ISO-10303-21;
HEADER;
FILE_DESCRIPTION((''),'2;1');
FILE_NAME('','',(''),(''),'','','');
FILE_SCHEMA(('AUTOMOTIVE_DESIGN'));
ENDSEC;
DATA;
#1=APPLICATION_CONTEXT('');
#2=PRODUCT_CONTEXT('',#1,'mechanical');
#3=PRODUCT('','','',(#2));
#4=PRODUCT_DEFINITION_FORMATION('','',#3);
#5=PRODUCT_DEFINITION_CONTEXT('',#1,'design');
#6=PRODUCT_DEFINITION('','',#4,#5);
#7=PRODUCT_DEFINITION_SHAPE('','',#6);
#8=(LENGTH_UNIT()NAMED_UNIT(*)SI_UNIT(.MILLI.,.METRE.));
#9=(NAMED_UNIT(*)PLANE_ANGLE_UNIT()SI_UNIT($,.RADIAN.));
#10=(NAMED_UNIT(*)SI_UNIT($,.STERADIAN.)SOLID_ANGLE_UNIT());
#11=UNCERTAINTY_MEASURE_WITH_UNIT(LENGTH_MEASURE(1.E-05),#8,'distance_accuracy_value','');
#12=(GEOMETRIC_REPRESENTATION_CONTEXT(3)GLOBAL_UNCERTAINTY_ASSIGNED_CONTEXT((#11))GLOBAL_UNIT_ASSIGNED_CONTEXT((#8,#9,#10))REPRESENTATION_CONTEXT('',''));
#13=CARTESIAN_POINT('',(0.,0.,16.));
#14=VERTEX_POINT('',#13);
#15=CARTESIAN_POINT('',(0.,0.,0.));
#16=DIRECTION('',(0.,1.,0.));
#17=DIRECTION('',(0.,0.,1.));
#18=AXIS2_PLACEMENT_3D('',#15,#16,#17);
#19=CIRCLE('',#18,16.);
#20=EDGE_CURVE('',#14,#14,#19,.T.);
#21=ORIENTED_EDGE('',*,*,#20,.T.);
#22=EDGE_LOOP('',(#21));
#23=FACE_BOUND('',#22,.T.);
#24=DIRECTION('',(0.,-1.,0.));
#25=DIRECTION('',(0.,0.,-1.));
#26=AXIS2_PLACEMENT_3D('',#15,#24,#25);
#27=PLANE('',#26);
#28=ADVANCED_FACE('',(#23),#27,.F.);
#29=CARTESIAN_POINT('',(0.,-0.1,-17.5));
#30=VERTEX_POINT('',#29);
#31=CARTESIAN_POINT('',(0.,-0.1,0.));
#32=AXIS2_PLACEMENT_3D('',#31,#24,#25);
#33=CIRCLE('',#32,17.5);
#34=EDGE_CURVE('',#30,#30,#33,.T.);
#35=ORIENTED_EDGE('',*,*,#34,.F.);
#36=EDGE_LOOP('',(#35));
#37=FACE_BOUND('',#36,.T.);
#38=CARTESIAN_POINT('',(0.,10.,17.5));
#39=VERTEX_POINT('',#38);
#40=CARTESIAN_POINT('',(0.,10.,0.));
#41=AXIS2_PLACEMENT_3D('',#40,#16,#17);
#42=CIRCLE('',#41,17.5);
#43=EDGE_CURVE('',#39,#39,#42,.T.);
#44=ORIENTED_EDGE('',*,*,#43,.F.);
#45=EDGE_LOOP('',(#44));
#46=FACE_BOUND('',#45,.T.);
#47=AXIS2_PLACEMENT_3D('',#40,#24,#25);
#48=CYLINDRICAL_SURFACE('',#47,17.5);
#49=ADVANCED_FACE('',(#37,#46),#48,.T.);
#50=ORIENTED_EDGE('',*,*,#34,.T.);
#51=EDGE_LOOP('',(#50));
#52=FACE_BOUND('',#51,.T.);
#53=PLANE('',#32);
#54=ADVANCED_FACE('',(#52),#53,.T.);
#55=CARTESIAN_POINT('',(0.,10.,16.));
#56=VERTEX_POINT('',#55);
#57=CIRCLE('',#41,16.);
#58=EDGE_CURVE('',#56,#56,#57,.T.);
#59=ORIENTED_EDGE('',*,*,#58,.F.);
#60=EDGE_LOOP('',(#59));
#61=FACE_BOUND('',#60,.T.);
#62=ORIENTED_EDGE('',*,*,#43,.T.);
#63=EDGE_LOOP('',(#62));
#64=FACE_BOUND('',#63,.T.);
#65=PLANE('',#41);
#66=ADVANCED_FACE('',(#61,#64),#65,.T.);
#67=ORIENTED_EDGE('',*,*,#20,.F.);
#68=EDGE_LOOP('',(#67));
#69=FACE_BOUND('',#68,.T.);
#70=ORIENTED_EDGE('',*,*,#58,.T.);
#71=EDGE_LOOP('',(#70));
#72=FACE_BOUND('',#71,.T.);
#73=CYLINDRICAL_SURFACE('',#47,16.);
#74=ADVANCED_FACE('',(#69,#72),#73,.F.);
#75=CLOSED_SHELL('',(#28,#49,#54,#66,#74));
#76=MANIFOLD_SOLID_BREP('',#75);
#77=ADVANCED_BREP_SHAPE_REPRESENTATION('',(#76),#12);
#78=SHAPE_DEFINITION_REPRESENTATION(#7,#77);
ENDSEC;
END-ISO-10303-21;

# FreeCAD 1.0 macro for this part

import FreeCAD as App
import Part
import Sketcher

doc = App.newDocument("Part")
body = doc.addObject("PartDesign::Body", "Body")

# Sketch on XZ plane
sketch1 = body.newObject("Sketcher::SketchObject", "Sketch")
sketch1.AttachmentSupport = (doc.getObject("XZ_Plane"), [""])
sketch1.MapMode = "FlatFace"
sketch1.addGeometry([
    Part.Circle(App.Vector(0, 0, 0), App.Vector(0, 0, 1), 18),
    Part.Circle(App.Vector(0, 0, 0), App.Vector(0, 0, 1), 16),
], False)
sketch1.addConstraint([
    Sketcher.Constraint("Coincident", 0, 3, -1, 1),
    Sketcher.Constraint("Coincident", 1, 3, -1, 1),
    Sketcher.Constraint("Diameter", 0, 35.0),
    Sketcher.Constraint("Diameter", 1, 32.0),
])
pad1 = body.newObject("PartDesign::Pad", "Pad")
pad1.Profile = sketch1
pad1.Length = 10
pad1.Reversed = True

# Sketch on XZ plane
sketch2 = body.newObject("Sketcher::SketchObject", "Sketch001")
sketch2.AttachmentSupport = (doc.getObject("XZ_Plane"), [""])
sketch2.MapMode = "FlatFace"
sketch2.AttachmentOffset = App.Placement(App.Vector(0, 0, 0.1), App.Rotation())
sketch2.addGeometry(Part.Circle(App.Vector(0, 0, 0), App.Vector(0, 0, 1), 18), False)
sketch2.addConstraint([
    Sketcher.Constraint("Coincident", 0, 3, -1, 1),
    Sketcher.Constraint("Diameter", 0, 35.0),
])
pad2 = body.newObject("PartDesign::Pad", "Pad001")
pad2.Profile = sketch2
pad2.Length = 0.1
pad2.Reversed = True

doc.recompute()
